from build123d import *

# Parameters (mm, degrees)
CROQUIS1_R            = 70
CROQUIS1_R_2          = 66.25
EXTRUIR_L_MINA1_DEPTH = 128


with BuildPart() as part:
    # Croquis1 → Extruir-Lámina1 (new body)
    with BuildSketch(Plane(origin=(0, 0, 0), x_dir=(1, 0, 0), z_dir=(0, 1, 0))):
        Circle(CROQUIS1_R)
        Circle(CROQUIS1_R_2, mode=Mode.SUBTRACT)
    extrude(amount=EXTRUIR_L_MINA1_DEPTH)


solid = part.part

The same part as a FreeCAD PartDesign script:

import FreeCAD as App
import Part
import Sketcher
Q = App.Units.Quantity

doc = App.newDocument("Part")
body = doc.addObject("PartDesign::Body", "Body")

# Sketch on XZ plane
sketch1 = body.newObject("Sketcher::SketchObject", "Sketch")
sketch1.AttachmentSupport = (doc.getObject("XZ_Plane"), [""])
sketch1.MapMode = "FlatFace"
sketch1.addGeometry([
    Part.Circle(App.Vector(0, 0, 0), App.Vector(0, 0, 1), 70),
    Part.Circle(App.Vector(0, 0, 0), App.Vector(0, 0, 1), 66),
], False)
sketch1.addConstraint([
    Sketcher.Constraint("Coincident", 0, 3, -1, 1),
    Sketcher.Constraint("Coincident", 1, 3, -1, 1),
    Sketcher.Constraint("Diameter", 0, Q("140 mm")),
    Sketcher.Constraint("Diameter", 1, Q("132.5 mm")),
])
pad1 = body.newObject("PartDesign::Pad", "Pad")
pad1.Profile = sketch1
pad1.Length = 128
pad1.Reversed = True

doc.recompute()
